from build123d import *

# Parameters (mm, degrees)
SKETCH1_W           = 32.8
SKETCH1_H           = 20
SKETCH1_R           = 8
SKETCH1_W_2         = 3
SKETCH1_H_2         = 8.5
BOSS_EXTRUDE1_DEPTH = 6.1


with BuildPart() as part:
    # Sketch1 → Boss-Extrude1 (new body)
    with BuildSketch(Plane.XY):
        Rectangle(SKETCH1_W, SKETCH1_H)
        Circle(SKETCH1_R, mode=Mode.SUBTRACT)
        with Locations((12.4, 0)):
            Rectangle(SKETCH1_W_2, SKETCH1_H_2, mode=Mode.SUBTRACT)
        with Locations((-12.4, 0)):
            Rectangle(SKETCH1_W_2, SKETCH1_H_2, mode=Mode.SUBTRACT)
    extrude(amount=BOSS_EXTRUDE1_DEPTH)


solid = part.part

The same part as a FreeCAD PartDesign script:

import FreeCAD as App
import Part
import Sketcher
from FreeCAD import Vector


def add_polygon(sketch, points):
    """Adds a closed chain of lines whose ends are joined by coincident constraints."""
    first, n = sketch.GeometryCount, len(points)
    for a, b in zip(points, points[1:] + points[:1]):
        sketch.addGeometry(Part.LineSegment(App.Vector(*a, 0), App.Vector(*b, 0)), False)
    for i in range(n):
        sketch.addConstraint(Sketcher.Constraint("Coincident", first + i, 2, first + (i + 1) % n, 1))

doc = App.newDocument("Part")
body = doc.addObject("PartDesign::Body", "Body")

# Sketch on XY plane
sketch1 = body.newObject("Sketcher::SketchObject", "Sketch")
sketch1.AttachmentSupport = (doc.getObject("XY_Plane"), [""])
sketch1.MapMode = "FlatFace"
add_polygon(sketch1, [(-16.4, 10), (-16.4, -10), (16.4, -10), (16.4, 10)])  # lines 0-3
add_polygon(sketch1, [(-10.9, -4.2), (-13.9, -4.2), (-13.9, 4.2), (-10.9, 4.2)])  # lines 4-7
sketch1.addGeometry(Part.Circle(Vector(0, 0, 0), Vector(0, 0, 1), 8), False)  # 8
add_polygon(sketch1, [(13.9, -4.2), (10.9, -4.2), (10.9, 4.2), (13.9, 4.2)])  # lines 9-12
sketch1.addConstraint(Sketcher.Constraint("Vertical", 0))
sketch1.addConstraint(Sketcher.Constraint("Horizontal", 1))
sketch1.addConstraint(Sketcher.Constraint("Vertical", 2))
sketch1.addConstraint(Sketcher.Constraint("Horizontal", 3))
sketch1.addConstraint(Sketcher.Constraint("Horizontal", 4))
sketch1.addConstraint(Sketcher.Constraint("Vertical", 5))
sketch1.addConstraint(Sketcher.Constraint("Horizontal", 6))
sketch1.addConstraint(Sketcher.Constraint("Vertical", 7))
sketch1.addConstraint(Sketcher.Constraint("Horizontal", 9))
sketch1.addConstraint(Sketcher.Constraint("Vertical", 10))
sketch1.addConstraint(Sketcher.Constraint("Horizontal", 11))
sketch1.addConstraint(Sketcher.Constraint("Vertical", 12))
sketch1.addConstraint(Sketcher.Constraint("Coincident", 8, 3, -1, 1))
sketch1.addConstraint(Sketcher.Constraint("Symmetric", 0, 2, 2, 2, -1, 1))
sketch1.addConstraint(Sketcher.Constraint("Symmetric", 6, 2, 9, 2, -1, 1))
sketch1.addConstraint(Sketcher.Constraint("Symmetric", 4, 2, 11, 2, -1, 1))
sketch1.addConstraint(Sketcher.Constraint("Horizontal", 7, 2, 9, 2))
sketch1.addConstraint(Sketcher.Constraint("Diameter", 8, 16.0))
sketch1.addConstraint(Sketcher.Constraint("DistanceX", 4, 2, 4, 1, 3.0))
sketch1.addConstraint(Sketcher.Constraint("DistanceY", 0, 2, 0, 1, 20.0))
sketch1.addConstraint(Sketcher.Constraint("DistanceX", 1, 1, 1, 2, 32.8))
sketch1.addConstraint(Sketcher.Constraint("DistanceY", 5, 1, 5, 2, 8.5))
sketch1.addConstraint(Sketcher.Constraint("DistanceX", 4, 2, -1, 1, 13.9))
pad1 = body.newObject("PartDesign::Pad", "Pad")
pad1.Profile = sketch1
pad1.Length = 6.1

doc.recompute()
